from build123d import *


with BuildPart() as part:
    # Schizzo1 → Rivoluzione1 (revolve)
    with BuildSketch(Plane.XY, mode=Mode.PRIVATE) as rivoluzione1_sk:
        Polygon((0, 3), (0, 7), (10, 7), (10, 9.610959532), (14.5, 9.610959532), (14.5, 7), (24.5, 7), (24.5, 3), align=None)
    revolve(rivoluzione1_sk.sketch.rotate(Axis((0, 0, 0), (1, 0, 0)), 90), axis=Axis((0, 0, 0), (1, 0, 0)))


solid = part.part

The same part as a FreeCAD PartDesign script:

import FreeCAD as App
import Part
import Sketcher

V = App.Vector
Q = App.Units.Quantity

doc = App.newDocument("Part")
body = doc.addObject("PartDesign::Body", "Body")

sketch1 = doc.addObject("Sketcher::SketchObject", "Sketch")
body.addObject(sketch1)
sketch1.AttachmentSupport = (doc.XY_Plane, [""])
sketch1.MapMode = "FlatFace"
sketch1.addGeometry(Part.LineSegment(V(0, 7, 0), V(0, 3, 0)), False)
sketch1.addGeometry(Part.LineSegment(V(0, 3, 0), V(24.5, 3, 0)), False)
sketch1.addGeometry(Part.LineSegment(V(24.5, 3, 0), V(24.5, 7, 0)), False)
sketch1.addGeometry(Part.LineSegment(V(24.5, 7, 0), V(14.5, 7, 0)), False)
sketch1.addGeometry(Part.LineSegment(V(14.5, 7, 0), V(14.5, 9.6, 0)), False)
sketch1.addGeometry(Part.LineSegment(V(14.5, 9.6, 0), V(10, 9.6, 0)), False)
sketch1.addGeometry(Part.LineSegment(V(10, 9.6, 0), V(10, 7, 0)), False)
sketch1.addGeometry(Part.LineSegment(V(10, 7, 0), V(0, 7, 0)), False)
sketch1.addConstraint(Sketcher.Constraint("Coincident", 0, 2, 1, 1))
sketch1.addConstraint(Sketcher.Constraint("Coincident", 1, 2, 2, 1))
sketch1.addConstraint(Sketcher.Constraint("Coincident", 2, 2, 3, 1))
sketch1.addConstraint(Sketcher.Constraint("Coincident", 3, 2, 4, 1))
sketch1.addConstraint(Sketcher.Constraint("Coincident", 4, 2, 5, 1))
sketch1.addConstraint(Sketcher.Constraint("Coincident", 5, 2, 6, 1))
sketch1.addConstraint(Sketcher.Constraint("Coincident", 6, 2, 7, 1))
sketch1.addConstraint(Sketcher.Constraint("Coincident", 7, 2, 0, 1))
sketch1.addConstraint(Sketcher.Constraint("Vertical", 0))
sketch1.addConstraint(Sketcher.Constraint("Horizontal", 1))
sketch1.addConstraint(Sketcher.Constraint("Vertical", 2))
sketch1.addConstraint(Sketcher.Constraint("Horizontal", 3))
sketch1.addConstraint(Sketcher.Constraint("Vertical", 4))
sketch1.addConstraint(Sketcher.Constraint("Horizontal", 5))
sketch1.addConstraint(Sketcher.Constraint("Vertical", 6))
sketch1.addConstraint(Sketcher.Constraint("Horizontal", 7))
sketch1.addConstraint(Sketcher.Constraint("PointOnObject", 0, 2, -2))
sketch1.addConstraint(Sketcher.Constraint("Horizontal", 3, 2, 6, 2))
sketch1.addConstraint(Sketcher.Constraint("Equal", 3, 7))
sketch1.addConstraint(Sketcher.Constraint("DistanceX", 3, 2, 3, 1, Q("10 mm")))
sketch1.addConstraint(Sketcher.Constraint("DistanceY", 0, 2, 0, 1, Q("4 mm")))
sketch1.addConstraint(Sketcher.Constraint("DistanceX", 1, 1, 1, 2, Q("24.5 mm")))
sketch1.addConstraint(Sketcher.Constraint("DistanceY", -1, 1, 0, 2, Q("3 mm")))
sketch1.addConstraint(Sketcher.Constraint("DistanceY", 4, 1, 4, 2, Q("2.61096 mm")))
revolution = doc.addObject("PartDesign::Revolution", "Revolution")
body.addObject(revolution)
revolution.Profile = sketch1
revolution.ReferenceAxis = (sketch1, ["H_Axis"])
revolution.Angle = 360

doc.recompute()
